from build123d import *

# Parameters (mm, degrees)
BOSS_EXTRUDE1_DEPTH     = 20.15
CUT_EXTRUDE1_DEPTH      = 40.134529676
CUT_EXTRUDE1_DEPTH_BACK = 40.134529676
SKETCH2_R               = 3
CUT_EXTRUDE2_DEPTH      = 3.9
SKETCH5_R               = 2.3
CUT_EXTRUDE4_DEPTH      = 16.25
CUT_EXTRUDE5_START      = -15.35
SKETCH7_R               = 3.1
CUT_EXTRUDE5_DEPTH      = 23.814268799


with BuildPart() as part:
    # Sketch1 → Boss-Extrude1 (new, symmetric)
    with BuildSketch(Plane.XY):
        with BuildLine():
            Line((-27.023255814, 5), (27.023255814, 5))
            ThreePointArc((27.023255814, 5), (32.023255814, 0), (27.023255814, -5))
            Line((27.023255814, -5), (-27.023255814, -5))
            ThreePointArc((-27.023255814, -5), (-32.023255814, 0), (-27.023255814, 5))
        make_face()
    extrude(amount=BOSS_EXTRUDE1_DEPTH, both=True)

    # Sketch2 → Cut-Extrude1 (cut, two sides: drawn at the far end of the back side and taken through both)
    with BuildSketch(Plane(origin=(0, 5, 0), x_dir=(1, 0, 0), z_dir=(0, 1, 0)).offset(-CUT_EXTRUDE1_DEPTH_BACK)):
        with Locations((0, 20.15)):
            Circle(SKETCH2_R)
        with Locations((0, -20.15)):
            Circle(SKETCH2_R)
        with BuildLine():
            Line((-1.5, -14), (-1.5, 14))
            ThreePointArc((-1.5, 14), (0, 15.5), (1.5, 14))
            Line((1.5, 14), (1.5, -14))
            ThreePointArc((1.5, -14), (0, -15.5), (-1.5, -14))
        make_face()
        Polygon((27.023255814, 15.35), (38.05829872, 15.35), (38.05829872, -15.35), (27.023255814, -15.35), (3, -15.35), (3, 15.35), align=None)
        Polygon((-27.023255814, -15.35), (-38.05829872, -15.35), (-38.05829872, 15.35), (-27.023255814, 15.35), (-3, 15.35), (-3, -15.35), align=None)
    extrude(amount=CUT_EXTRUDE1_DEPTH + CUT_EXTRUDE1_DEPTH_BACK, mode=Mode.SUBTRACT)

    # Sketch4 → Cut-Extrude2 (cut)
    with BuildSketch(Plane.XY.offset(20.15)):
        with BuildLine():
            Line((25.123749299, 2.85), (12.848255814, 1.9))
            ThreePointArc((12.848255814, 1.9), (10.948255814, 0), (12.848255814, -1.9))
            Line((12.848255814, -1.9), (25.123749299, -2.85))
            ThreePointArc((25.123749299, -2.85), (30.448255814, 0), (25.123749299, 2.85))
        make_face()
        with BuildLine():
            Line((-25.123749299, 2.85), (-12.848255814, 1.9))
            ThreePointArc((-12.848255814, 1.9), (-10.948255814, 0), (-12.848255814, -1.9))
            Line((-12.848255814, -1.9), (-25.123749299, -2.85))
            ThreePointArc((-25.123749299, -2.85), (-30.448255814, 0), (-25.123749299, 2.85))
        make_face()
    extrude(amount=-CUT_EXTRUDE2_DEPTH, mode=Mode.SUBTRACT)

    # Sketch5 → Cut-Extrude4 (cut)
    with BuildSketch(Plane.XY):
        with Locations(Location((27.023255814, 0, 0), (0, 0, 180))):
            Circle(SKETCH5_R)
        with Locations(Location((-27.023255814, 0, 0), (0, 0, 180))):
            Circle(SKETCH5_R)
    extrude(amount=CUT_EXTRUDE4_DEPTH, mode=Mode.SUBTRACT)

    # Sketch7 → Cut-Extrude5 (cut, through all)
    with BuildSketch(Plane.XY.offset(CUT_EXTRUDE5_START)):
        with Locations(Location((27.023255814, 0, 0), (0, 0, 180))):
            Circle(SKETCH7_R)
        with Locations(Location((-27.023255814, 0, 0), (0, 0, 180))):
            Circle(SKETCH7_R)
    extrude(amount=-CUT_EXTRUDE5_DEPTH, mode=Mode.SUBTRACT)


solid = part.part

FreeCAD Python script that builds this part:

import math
import FreeCAD as App
import Part
import Sketcher

doc = App.newDocument("Part")
body = doc.addObject("PartDesign::Body", "Body")

# Sketch on XY plane
sketch1 = body.newObject("Sketcher::SketchObject", "Sketch")
sketch1.AttachmentSupport = (doc.getObject("XY_Plane"), [""])
sketch1.MapMode = "FlatFace"
sketch1.addGeometry([
    Part.LineSegment(App.Vector(27, 5, 0), App.Vector(-27, 5, 0)),
    Part.ArcOfCircle(Part.Circle(App.Vector(-27, 0, 0), App.Vector(0, 0, 1), 5), math.radians(90), math.radians(270)),
    Part.LineSegment(App.Vector(-27, -5, 0), App.Vector(27, -5, 0)),
    Part.ArcOfCircle(Part.Circle(App.Vector(27, 0, 0), App.Vector(0, 0, 1), 5), math.radians(-90), math.radians(90)),
], False)
sketch1.addConstraint([
    Sketcher.Constraint("Tangent", 0, 2, 1, 1),
    Sketcher.Constraint("Tangent", 1, 2, 2, 1),
    Sketcher.Constraint("Tangent", 2, 2, 3, 1),
    Sketcher.Constraint("Tangent", 3, 2, 0, 1),
    Sketcher.Constraint("Horizontal", 0),
    Sketcher.Constraint("Horizontal", 2),
    Sketcher.Constraint("Symmetric", 1, 3, 3, 3, -1, 1),
    Sketcher.Constraint("Radius", 1, 5.0),
    Sketcher.Constraint("DistanceX", 0, 2, 0, 1, 54.046512),
])
pad1 = body.newObject("PartDesign::Pad", "Pad")
pad1.Profile = sketch1
pad1.Length = 40.3
pad1.Midplane = True

# Sketch on XZ plane
sketch2 = body.newObject("Sketcher::SketchObject", "Sketch001")
sketch2.AttachmentSupport = (doc.getObject("XZ_Plane"), [""])
sketch2.MapMode = "FlatFace"
sketch2.AttachmentOffset = App.Placement(App.Vector(0, 0, -5), App.Rotation())
sketch2.addGeometry([
    Part.Circle(App.Vector(0, -20.1, 0), App.Vector(0, 0, 1), 3),  # 0
    Part.Circle(App.Vector(0, 20.1, 0), App.Vector(0, 0, 1), 3),  # 1
    Part.LineSegment(App.Vector(-1.5, -14, 0), App.Vector(-1.5, 14, 0)),  # 2
    Part.ArcOfCircle(Part.Circle(App.Vector(0, 14, 0), App.Vector(0, 0, 1), 1.5), math.radians(0), math.radians(180)),  # 3
    Part.LineSegment(App.Vector(1.5, 14, 0), App.Vector(1.5, -14, 0)),  # 4
    Part.ArcOfCircle(Part.Circle(App.Vector(0, -14, 0), App.Vector(0, 0, 1), 1.5), math.radians(180), math.radians(360)),  # 5
    Part.LineSegment(App.Vector(38.1, -15.3, 0), App.Vector(3, -15.3, 0)),  # 6
    Part.LineSegment(App.Vector(3, -15.3, 0), App.Vector(3, 15.3, 0)),  # 7
    Part.LineSegment(App.Vector(3, 15.3, 0), App.Vector(38.1, 15.3, 0)),  # 8
    Part.LineSegment(App.Vector(38.1, 15.3, 0), App.Vector(38.1, -15.3, 0)),  # 9
    Part.LineSegment(App.Vector(-38.1, 15.3, 0), App.Vector(-3, 15.3, 0)),  # 10
    Part.LineSegment(App.Vector(-3, 15.3, 0), App.Vector(-3, -15.3, 0)),  # 11
    Part.LineSegment(App.Vector(-3, -15.3, 0), App.Vector(-38.1, -15.3, 0)),  # 12
    Part.LineSegment(App.Vector(-38.1, -15.3, 0), App.Vector(-38.1, 15.3, 0)),  # 13
], False)
sketch2.addConstraint([
    Sketcher.Constraint("Tangent", 2, 2, 3, 2),
    Sketcher.Constraint("Tangent", 3, 1, 4, 1),
    Sketcher.Constraint("Tangent", 4, 2, 5, 2),
    Sketcher.Constraint("Tangent", 5, 1, 2, 1),
    Sketcher.Constraint("Coincident", 6, 2, 7, 1),
    Sketcher.Constraint("Coincident", 7, 2, 8, 1),
    Sketcher.Constraint("Coincident", 8, 2, 9, 1),
    Sketcher.Constraint("Coincident", 9, 2, 6, 1),
    Sketcher.Constraint("Coincident", 10, 2, 11, 1),
    Sketcher.Constraint("Coincident", 11, 2, 12, 1),
    Sketcher.Constraint("Coincident", 12, 2, 13, 1),
    Sketcher.Constraint("Coincident", 13, 2, 10, 1),
    Sketcher.Constraint("Vertical", 2),
    Sketcher.Constraint("Vertical", 4),
    Sketcher.Constraint("Horizontal", 6),
    Sketcher.Constraint("Vertical", 7),
    Sketcher.Constraint("Horizontal", 8),
    Sketcher.Constraint("Vertical", 9),
    Sketcher.Constraint("Horizontal", 10),
    Sketcher.Constraint("Vertical", 11),
    Sketcher.Constraint("Horizontal", 12),
    Sketcher.Constraint("Vertical", 13),
    Sketcher.Constraint("Equal", 0, 1),
    Sketcher.Constraint("Symmetric", 0, 3, 1, 3, -1, 1),
    Sketcher.Constraint("Symmetric", 3, 3, 5, 3, -1, 1),
    Sketcher.Constraint("Symmetric", 6, 2, 10, 2, -1, 1),
    Sketcher.Constraint("Symmetric", 8, 2, 12, 2, -1, 1),
    Sketcher.Constraint("PointOnObject", 0, 3, -2),
    Sketcher.Constraint("Horizontal", 8, 2, 10, 2),
    Sketcher.Constraint("Diameter", 0, 6.0),
    Sketcher.Constraint("Radius", 3, 1.5),
    Sketcher.Constraint("DistanceY", 2, 1, 2, 2, 28.0),
    Sketcher.Constraint("DistanceY", 7, 1, 7, 2, 30.7),
    Sketcher.Constraint("DistanceX", -1, 1, 6, 2, 3.0),
    Sketcher.Constraint("DistanceY", 0, 3, 1, 3, 40.3),
    Sketcher.Constraint("DistanceX", 6, 2, 6, 1, 35.058299),
])
pocket1 = body.newObject("PartDesign::Pocket", "Pocket")
pocket1.Profile = sketch2
pocket1.Type = "ThroughAll"
pocket1.Midplane = True

# Sketch on XY plane
sketch3 = body.newObject("Sketcher::SketchObject", "Sketch002")
sketch3.AttachmentSupport = (doc.getObject("XY_Plane"), [""])
sketch3.MapMode = "FlatFace"
sketch3.AttachmentOffset = App.Placement(App.Vector(0, 0, 20.15), App.Rotation())
sketch3.addGeometry([
    Part.LineSegment(App.Vector(25.1, 2.9, 0), App.Vector(12.8, 1.9, 0)),  # 0
    Part.ArcOfCircle(Part.Circle(App.Vector(12.8, 0, 0), App.Vector(0, 0, 1), 1.9), math.radians(90), math.radians(270)),  # 1
    Part.LineSegment(App.Vector(12.8, -1.9, 0), App.Vector(25.1, -2.9, 0)),  # 2
    Part.ArcOfCircle(Part.Circle(App.Vector(27, 0, 0), App.Vector(0, 0, 1), 3.4), math.radians(-124), math.radians(124)),  # 3
    Part.LineSegment(App.Vector(-12.8, 1.9, 0), App.Vector(-25.1, 2.9, 0)),  # 4
    Part.ArcOfCircle(Part.Circle(App.Vector(-27, 0, 0), App.Vector(0, 0, 1), 3.4), math.radians(56), math.radians(304)),  # 5
    Part.LineSegment(App.Vector(-25.1, -2.9, 0), App.Vector(-12.8, -1.9, 0)),  # 6
    Part.ArcOfCircle(Part.Circle(App.Vector(-12.8, 0, 0), App.Vector(0, 0, 1), 1.9), math.radians(-90), math.radians(90)),  # 7
], False)
sketch3.addConstraint([
    Sketcher.Constraint("Coincident", 0, 2, 1, 1),
    Sketcher.Constraint("Coincident", 1, 2, 2, 1),
    Sketcher.Constraint("Coincident", 2, 2, 3, 1),
    Sketcher.Constraint("Coincident", 3, 2, 0, 1),
    Sketcher.Constraint("Coincident", 4, 2, 5, 1),
    Sketcher.Constraint("Coincident", 5, 2, 6, 1),
    Sketcher.Constraint("Coincident", 6, 2, 7, 1),
    Sketcher.Constraint("Coincident", 7, 2, 4, 1),
    Sketcher.Constraint("Equal", 3, 5),
    Sketcher.Constraint("Equal", 1, 7),
    Sketcher.Constraint("Symmetric", 3, 3, 5, 3, -1, 1),
    Sketcher.Constraint("Symmetric", 1, 3, 7, 3, -1, 1),
    Sketcher.Constraint("Symmetric", 3, 2, 4, 2, -2),
    Sketcher.Constraint("Symmetric", 1, 2, 6, 2, -2),
    Sketcher.Constraint("Parallel", 2, 4),
    Sketcher.Constraint("Parallel", 0, 6),
    Sketcher.Constraint("Horizontal", 2, 2, 5, 2),
    Sketcher.Constraint("Vertical", 1, 3, 0, 2),
    Sketcher.Constraint("Vertical", 0, 2, 1, 2),
    Sketcher.Constraint("Radius", 1, 1.9),
    Sketcher.Constraint("Radius", 3, 3.425),
    Sketcher.Constraint("DistanceY", 2, 2, 3, 2, 5.7),
    Sketcher.Constraint("DistanceX", 1, 3, 3, 3, 14.175),
    Sketcher.Constraint("DistanceX", -1, 1, 2, 2, 25.123749),
])
pocket2 = body.newObject("PartDesign::Pocket", "Pocket001")
pocket2.Profile = sketch3
pocket2.Length = 3.9

# Sketch on XY plane
sketch4 = body.newObject("Sketcher::SketchObject", "Sketch003")
sketch4.AttachmentSupport = (doc.getObject("XY_Plane"), [""])
sketch4.MapMode = "FlatFace"
sketch4.addGeometry([
    Part.Circle(App.Vector(27, 0, 0), App.Vector(0, 0, 1), 2.3),
    Part.Circle(App.Vector(-27, 0, 0), App.Vector(0, 0, 1), 2.3),
], False)
sketch4.addConstraint([
    Sketcher.Constraint("Equal", 0, 1),
    Sketcher.Constraint("Symmetric", 0, 3, 1, 3, -1, 1),
    Sketcher.Constraint("PointOnObject", 0, 3, -1),
    Sketcher.Constraint("Diameter", 0, 4.6),
    Sketcher.Constraint("DistanceX", 1, 3, 0, 3, 54.046512),
])
pocket3 = body.newObject("PartDesign::Pocket", "Pocket002")
pocket3.Profile = sketch4
pocket3.Length = 16.25
pocket3.Reversed = True

# Sketch on XY plane
sketch5 = body.newObject("Sketcher::SketchObject", "Sketch004")
sketch5.AttachmentSupport = (doc.getObject("XY_Plane"), [""])
sketch5.MapMode = "FlatFace"
sketch5.AttachmentOffset = App.Placement(App.Vector(0, 0, -15.35), App.Rotation())
sketch5.addGeometry([
    Part.Circle(App.Vector(27, 0, 0), App.Vector(0, 0, 1), 3.1),
    Part.Circle(App.Vector(-27, 0, 0), App.Vector(0, 0, 1), 3.1),
], False)
sketch5.addConstraint([
    Sketcher.Constraint("Equal", 0, 1),
    Sketcher.Constraint("Symmetric", 0, 3, 1, 3, -1, 1),
    Sketcher.Constraint("PointOnObject", 0, 3, -1),
    Sketcher.Constraint("Diameter", 0, 6.2),
    Sketcher.Constraint("DistanceX", 1, 3, 0, 3, 54.046512),
])
pocket4 = body.newObject("PartDesign::Pocket", "Pocket003")
pocket4.Profile = sketch5
pocket4.Type = "ThroughAll"

doc.recompute()
